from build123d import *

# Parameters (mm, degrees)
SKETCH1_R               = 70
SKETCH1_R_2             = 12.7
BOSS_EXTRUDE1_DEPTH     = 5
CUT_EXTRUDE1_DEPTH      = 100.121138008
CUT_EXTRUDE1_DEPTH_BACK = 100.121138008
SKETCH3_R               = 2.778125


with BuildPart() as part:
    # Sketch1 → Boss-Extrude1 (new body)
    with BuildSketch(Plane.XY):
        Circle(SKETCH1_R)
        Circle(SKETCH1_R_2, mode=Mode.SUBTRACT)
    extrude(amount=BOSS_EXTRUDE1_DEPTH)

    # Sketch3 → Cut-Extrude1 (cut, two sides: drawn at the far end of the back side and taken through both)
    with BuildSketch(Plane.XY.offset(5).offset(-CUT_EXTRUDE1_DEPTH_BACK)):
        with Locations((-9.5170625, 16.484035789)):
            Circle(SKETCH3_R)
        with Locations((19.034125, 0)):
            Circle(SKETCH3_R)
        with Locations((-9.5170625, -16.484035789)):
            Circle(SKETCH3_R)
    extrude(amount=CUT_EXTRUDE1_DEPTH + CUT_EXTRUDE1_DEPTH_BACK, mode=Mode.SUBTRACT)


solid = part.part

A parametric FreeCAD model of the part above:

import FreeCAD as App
import Part
import Sketcher
from FreeCAD import Vector
Q = App.Units.Quantity

doc = App.newDocument("Part")
body = doc.addObject("PartDesign::Body", "Body")

sketch1 = body.newObject("Sketcher::SketchObject", "Sketch")
sketch1.AttachmentSupport = (doc.getObject("XY_Plane"), [""])
sketch1.MapMode = "FlatFace"
sketch1.addGeometry([
    Part.Circle(Vector(0, 0, 0), Vector(0, 0, 1), 70),
    Part.Circle(Vector(0, 0, 0), Vector(0, 0, 1), 12.7),
], False)
sketch1.addConstraint([
    Sketcher.Constraint("Coincident", 0, 3, -1, 1),
    Sketcher.Constraint("Coincident", 1, 3, -1, 1),
    Sketcher.Constraint("Diameter", 0, Q("140 mm")),
    Sketcher.Constraint("Diameter", 1, Q("25.4 mm")),
])
pad1 = body.newObject("PartDesign::Pad", "Pad")
pad1.Profile = sketch1
pad1.Length = 5

sketch2 = body.newObject("Sketcher::SketchObject", "Sketch001")
sketch2.AttachmentSupport = (doc.getObject("XY_Plane"), [""])
sketch2.MapMode = "FlatFace"
sketch2.AttachmentOffset = App.Placement(Vector(0, 0, 5), App.Rotation())
sketch2.addGeometry([
    Part.Circle(Vector(-9.517062, 16.484036, 0), Vector(0, 0, 1), 2.778125),
    Part.Circle(Vector(19.034125, 0, 0), Vector(0, 0, 1), 2.778125),
    Part.Circle(Vector(-9.517062, -16.484036, 0), Vector(0, 0, 1), 2.778125),
], False)
sketch2.addConstraint([
    Sketcher.Constraint("Equal", 0, 1),
    Sketcher.Constraint("Equal", 1, 2),
    Sketcher.Constraint("Symmetric", 0, 3, 2, 3, -1),
    Sketcher.Constraint("PointOnObject", 1, 3, -1),
    Sketcher.Constraint("Diameter", 0, Q("5.55625 mm")),
    Sketcher.Constraint("DistanceY", 2, 3, 0, 3, Q("32.968072 mm")),
    Sketcher.Constraint("DistanceX", 0, 3, -1, 1, Q("9.517062 mm")),
    Sketcher.Constraint("DistanceX", -1, 1, 1, 3, Q("19.034125 mm")),
])
pocket1 = body.newObject("PartDesign::Pocket", "Pocket")
pocket1.Profile = sketch2
pocket1.Type = "ThroughAll"
pocket1.Midplane = True

doc.recompute()
